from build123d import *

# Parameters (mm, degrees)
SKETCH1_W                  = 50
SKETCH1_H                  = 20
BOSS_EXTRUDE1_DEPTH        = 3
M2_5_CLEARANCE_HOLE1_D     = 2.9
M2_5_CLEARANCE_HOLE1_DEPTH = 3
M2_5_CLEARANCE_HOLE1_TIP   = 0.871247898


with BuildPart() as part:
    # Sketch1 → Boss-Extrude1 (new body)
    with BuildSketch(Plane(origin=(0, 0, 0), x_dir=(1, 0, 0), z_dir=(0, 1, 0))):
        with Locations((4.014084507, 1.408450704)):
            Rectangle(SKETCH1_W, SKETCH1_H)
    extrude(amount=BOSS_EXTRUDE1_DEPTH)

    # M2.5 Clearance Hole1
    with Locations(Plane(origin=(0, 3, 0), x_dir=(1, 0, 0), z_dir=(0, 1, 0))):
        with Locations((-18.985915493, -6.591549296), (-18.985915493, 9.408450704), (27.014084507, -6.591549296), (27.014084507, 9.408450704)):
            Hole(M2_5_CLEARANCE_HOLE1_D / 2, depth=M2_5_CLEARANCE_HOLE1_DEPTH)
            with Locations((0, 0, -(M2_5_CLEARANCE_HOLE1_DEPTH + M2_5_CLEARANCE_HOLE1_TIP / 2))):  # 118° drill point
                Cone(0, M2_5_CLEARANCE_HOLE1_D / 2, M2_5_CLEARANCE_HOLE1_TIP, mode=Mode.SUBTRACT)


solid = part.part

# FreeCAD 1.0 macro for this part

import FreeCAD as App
import Part
import Sketcher
from FreeCAD import Vector


def add_polygon(sketch, points):
    """Adds a closed chain of lines whose ends are joined by coincident constraints."""
    first, n = sketch.GeometryCount, len(points)
    for a, b in zip(points, points[1:] + points[:1]):
        sketch.addGeometry(Part.LineSegment(App.Vector(*a, 0), App.Vector(*b, 0)), False)
    for i in range(n):
        sketch.addConstraint(Sketcher.Constraint("Coincident", first + i, 2, first + (i + 1) % n, 1))

doc = App.newDocument("Part")
body = doc.addObject("PartDesign::Body", "Body")

sketch1 = body.newObject("Sketcher::SketchObject", "Sketch")
sketch1.AttachmentSupport = (doc.getObject("XZ_Plane"), [""])
sketch1.MapMode = "FlatFace"
add_polygon(sketch1, [(-21, -11), (-21, 9), (29, 9), (29, -11)])
sketch1.addConstraint([
    Sketcher.Constraint("Vertical", 0),
    Sketcher.Constraint("Horizontal", 1),
    Sketcher.Constraint("Vertical", 2),
    Sketcher.Constraint("Horizontal", 3),
    Sketcher.Constraint("DistanceX", 1, 1, 1, 2, 50.0),
    Sketcher.Constraint("DistanceY", 0, 1, 0, 2, 20.0),
    Sketcher.Constraint("DistanceY", -1, 1, 0, 2, 8.591549),
    Sketcher.Constraint("DistanceX", 0, 2, -1, 1, 20.985915),
])
pad1 = body.newObject("PartDesign::Pad", "Pad")
pad1.Profile = sketch1
pad1.Length = 3
pad1.Reversed = True

sketch2 = body.newObject("Sketcher::SketchObject", "Sketch001")
sketch2.AttachmentSupport = (doc.getObject("XZ_Plane"), [""])
sketch2.MapMode = "FlatFace"
sketch2.AttachmentOffset = App.Placement(Vector(0, 0, -3), App.Rotation())
sketch2.addGeometry([
    Part.Circle(Vector(-19, 6.6, 0), Vector(0, 0, 1), 1.4),
    Part.Circle(Vector(-19, -9.4, 0), Vector(0, 0, 1), 1.4),
    Part.Circle(Vector(27, 6.6, 0), Vector(0, 0, 1), 1.4),
    Part.Circle(Vector(27, -9.4, 0), Vector(0, 0, 1), 1.4),
], False)
sketch2.addConstraint([
    Sketcher.Constraint("Equal", 0, 1),
    Sketcher.Constraint("Equal", 1, 2),
    Sketcher.Constraint("Equal", 2, 3),
    Sketcher.Constraint("Horizontal", 0, 3, 2, 3),
    Sketcher.Constraint("Horizontal", 1, 3, 3, 3),
    Sketcher.Constraint("Vertical", 0, 3, 1, 3),
    Sketcher.Constraint("Vertical", 2, 3, 3, 3),
    Sketcher.Constraint("Diameter", 0, 2.9),
    Sketcher.Constraint("DistanceY", 1, 3, 0, 3, 16.0),
    Sketcher.Constraint("DistanceX", 0, 3, 2, 3, 46.0),
    Sketcher.Constraint("DistanceY", -1, 1, 0, 3, 6.591549),
    Sketcher.Constraint("DistanceX", 0, 3, -1, 1, 18.985915),
])
doc.recompute()
hole = body.newObject("PartDesign::Hole", "Hole")
hole.Profile = sketch2
hole.ThreadType = "None"
hole.Diameter = 2.9
hole.DepthType = "Dimension"
hole.Depth = 3
hole.DrillPoint = "Angled"
hole.DrillPointAngle = 118
hole.Reversed = True

doc.recompute()
